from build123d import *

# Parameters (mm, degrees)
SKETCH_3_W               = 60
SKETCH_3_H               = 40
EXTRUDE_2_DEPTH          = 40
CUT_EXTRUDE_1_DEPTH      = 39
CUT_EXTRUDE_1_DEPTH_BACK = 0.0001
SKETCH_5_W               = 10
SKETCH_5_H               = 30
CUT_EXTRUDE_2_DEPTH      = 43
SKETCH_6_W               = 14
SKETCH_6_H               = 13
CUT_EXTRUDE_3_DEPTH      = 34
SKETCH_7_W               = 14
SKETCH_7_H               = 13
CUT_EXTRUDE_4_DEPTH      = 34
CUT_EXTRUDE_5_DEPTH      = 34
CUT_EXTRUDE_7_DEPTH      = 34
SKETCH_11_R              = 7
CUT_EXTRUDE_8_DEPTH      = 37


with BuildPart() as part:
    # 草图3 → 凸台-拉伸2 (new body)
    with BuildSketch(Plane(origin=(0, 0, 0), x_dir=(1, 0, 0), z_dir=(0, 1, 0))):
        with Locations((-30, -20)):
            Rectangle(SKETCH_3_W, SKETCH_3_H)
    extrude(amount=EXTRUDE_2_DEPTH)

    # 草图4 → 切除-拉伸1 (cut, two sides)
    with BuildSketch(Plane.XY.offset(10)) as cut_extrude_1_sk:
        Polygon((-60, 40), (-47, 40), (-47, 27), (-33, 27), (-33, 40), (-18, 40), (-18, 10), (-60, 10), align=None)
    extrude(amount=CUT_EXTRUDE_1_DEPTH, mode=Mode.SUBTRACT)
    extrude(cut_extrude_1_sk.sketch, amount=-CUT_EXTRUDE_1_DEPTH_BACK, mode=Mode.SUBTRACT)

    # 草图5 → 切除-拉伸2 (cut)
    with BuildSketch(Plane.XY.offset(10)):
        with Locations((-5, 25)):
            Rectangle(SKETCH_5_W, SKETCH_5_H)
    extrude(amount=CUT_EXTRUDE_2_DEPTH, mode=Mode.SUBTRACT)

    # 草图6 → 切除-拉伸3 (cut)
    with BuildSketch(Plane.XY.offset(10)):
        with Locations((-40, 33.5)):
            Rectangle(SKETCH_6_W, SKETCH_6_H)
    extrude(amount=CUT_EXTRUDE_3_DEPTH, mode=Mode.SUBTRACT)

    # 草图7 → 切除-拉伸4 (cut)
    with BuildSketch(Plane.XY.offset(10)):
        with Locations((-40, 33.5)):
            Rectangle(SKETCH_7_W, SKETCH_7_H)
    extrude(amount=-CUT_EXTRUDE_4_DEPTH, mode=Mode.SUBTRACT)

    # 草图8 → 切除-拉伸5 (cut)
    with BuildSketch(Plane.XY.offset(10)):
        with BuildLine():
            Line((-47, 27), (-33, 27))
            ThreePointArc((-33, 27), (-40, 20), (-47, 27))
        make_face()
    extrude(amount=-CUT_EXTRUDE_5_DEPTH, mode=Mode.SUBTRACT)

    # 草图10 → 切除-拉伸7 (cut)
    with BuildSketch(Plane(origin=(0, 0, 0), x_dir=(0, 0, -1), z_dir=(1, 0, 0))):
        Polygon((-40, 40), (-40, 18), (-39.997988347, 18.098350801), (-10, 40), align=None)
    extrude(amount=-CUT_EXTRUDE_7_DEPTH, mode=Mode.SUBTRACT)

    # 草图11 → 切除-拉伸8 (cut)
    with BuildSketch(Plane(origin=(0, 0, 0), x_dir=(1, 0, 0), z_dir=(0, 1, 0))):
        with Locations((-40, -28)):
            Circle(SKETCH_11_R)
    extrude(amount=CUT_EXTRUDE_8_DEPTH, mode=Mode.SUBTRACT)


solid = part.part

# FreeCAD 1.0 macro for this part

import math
import FreeCAD as App
import Part
import Sketcher

V = App.Vector

doc = App.newDocument("Part")
params = doc.addObject("Spreadsheet::Sheet", "Params")
for row, (alias, value) in enumerate([
    ("sketch1_width", "60 mm"),
    ("sketch1_height", "40 mm"),
    ("pad1_length", "40 mm"),
    ("sketch2_width", "13 mm"),
    ("sketch2_width2", "42 mm"),
    ("sketch2_width3", "15 mm"),
    ("sketch2_height", "30 mm"),
    ("pocket1_length", "39 mm"),
    ("pocket1_length2", "0.0001 mm"),
    ("sketch3_width", "10 mm"),
    ("sketch3_height", "30 mm"),
    ("pocket2_length", "43 mm"),
    ("sketch4_width", "14 mm"),
    ("sketch4_height", "13 mm"),
    ("pocket3_length", "34 mm"),
    ("sketch5_width", "14 mm"),
    ("sketch5_height", "13 mm"),
    ("pocket4_length", "34 mm"),
    ("sketch6_radius", "7 mm"),
    ("pocket5_length", "34 mm"),
    ("sketch7_width", "22 mm"),
    ("sketch7_height", "30 mm"),
    ("pocket6_length", "34 mm"),
    ("sketch8_diameter", "14 mm"),
    ("pocket7_length", "37 mm"),
], start=1):
    params.set(f"A{row}", alias)
    params.set(f"B{row}", "=" + value)
    params.setAlias(f"B{row}", alias)

body = doc.addObject("PartDesign::Body", "Body")

# Sketch on XZ plane
sketch1 = body.newObject("Sketcher::SketchObject", "Sketch")
sketch1.AttachmentSupport = (doc.getObject("XZ_Plane"), [""])
sketch1.MapMode = "FlatFace"
sketch1.addGeometry([
    Part.LineSegment(V(-60, 0, 0), V(-60, 40, 0)),
    Part.LineSegment(V(-60, 40, 0), V(0, 40, 0)),
    Part.LineSegment(V(0, 40, 0), V(0, 0, 0)),
    Part.LineSegment(V(0, 0, 0), V(-60, 0, 0)),
], False)
sketch1.addConstraint([
    Sketcher.Constraint("Coincident", 0, 2, 1, 1),
    Sketcher.Constraint("Coincident", 1, 2, 2, 1),
    Sketcher.Constraint("Coincident", 2, 2, 3, 1),
    Sketcher.Constraint("Coincident", 3, 2, 0, 1),
    Sketcher.Constraint("Vertical", 0),
    Sketcher.Constraint("Horizontal", 1),
    Sketcher.Constraint("Vertical", 2),
    Sketcher.Constraint("Horizontal", 3),
    Sketcher.Constraint("Coincident", 2, 2, -1, 1),
    Sketcher.Constraint("DistanceX", 1, 1, 1, 2, 60.0),
    Sketcher.Constraint("DistanceY", 0, 1, 0, 2, 40.0),
])
sketch1.setExpression("Constraints[9]", "Params.sketch1_width")
sketch1.setExpression("Constraints[10]", "Params.sketch1_height")
pad1 = body.newObject("PartDesign::Pad", "Pad")
pad1.Profile = sketch1
pad1.setExpression("Length", "Params.pad1_length")
pad1.Reversed = True

# Sketch on XY plane
sketch2 = body.newObject("Sketcher::SketchObject", "Sketch001")
sketch2.AttachmentSupport = (doc.getObject("XY_Plane"), [""])
sketch2.MapMode = "FlatFace"
sketch2.AttachmentOffset = App.Placement(V(0, 0, 10), App.Rotation())
sketch2.addGeometry([
    Part.LineSegment(V(-47, 40, 0), V(-60, 40, 0)),  # 0
    Part.LineSegment(V(-60, 40, 0), V(-60, 10, 0)),  # 1
    Part.LineSegment(V(-60, 10, 0), V(-18, 10, 0)),  # 2
    Part.LineSegment(V(-18, 10, 0), V(-18, 40, 0)),  # 3
    Part.LineSegment(V(-18, 40, 0), V(-33, 40, 0)),  # 4
    Part.LineSegment(V(-33, 40, 0), V(-33, 27, 0)),  # 5
    Part.LineSegment(V(-33, 27, 0), V(-47, 27, 0)),  # 6
    Part.LineSegment(V(-47, 27, 0), V(-47, 40, 0)),  # 7
], False)
sketch2.addConstraint([
    Sketcher.Constraint("Coincident", 0, 2, 1, 1),
    Sketcher.Constraint("Coincident", 1, 2, 2, 1),
    Sketcher.Constraint("Coincident", 2, 2, 3, 1),
    Sketcher.Constraint("Coincident", 3, 2, 4, 1),
    Sketcher.Constraint("Coincident", 4, 2, 5, 1),
    Sketcher.Constraint("Coincident", 5, 2, 6, 1),
    Sketcher.Constraint("Coincident", 6, 2, 7, 1),
    Sketcher.Constraint("Coincident", 7, 2, 0, 1),
    Sketcher.Constraint("Horizontal", 0),
    Sketcher.Constraint("Vertical", 1),
    Sketcher.Constraint("Horizontal", 2),
    Sketcher.Constraint("Vertical", 3),
    Sketcher.Constraint("Horizontal", 4),
    Sketcher.Constraint("Vertical", 5),
    Sketcher.Constraint("Horizontal", 6),
    Sketcher.Constraint("Vertical", 7),
    Sketcher.Constraint("Horizontal", 0, 2, 3, 2),
    Sketcher.Constraint("Equal", 0, 5),
    Sketcher.Constraint("DistanceX", 0, 2, 0, 1, 13.0),
    Sketcher.Constraint("DistanceX", 2, 1, 2, 2, 42.0),
    Sketcher.Constraint("DistanceX", 4, 2, 4, 1, 15.0),
    Sketcher.Constraint("DistanceY", 1, 2, 1, 1, 30.0),
    Sketcher.Constraint("DistanceX", 0, 2, -1, 1, 60.0),
    Sketcher.Constraint("DistanceY", -1, 1, 0, 2, 40.0),
])
sketch2.setExpression("Constraints[18]", "Params.sketch2_width")
sketch2.setExpression("Constraints[19]", "Params.sketch2_width2")
sketch2.setExpression("Constraints[20]", "Params.sketch2_width3")
sketch2.setExpression("Constraints[21]", "Params.sketch2_height")
pocket1 = body.newObject("PartDesign::Pocket", "Pocket")
pocket1.Profile = sketch2
pocket1.Type = "TwoLengths"
pocket1.setExpression("Length", "Params.pocket1_length")
pocket1.setExpression("Length2", "Params.pocket1_length2")
pocket1.Reversed = True

# Sketch on XY plane
sketch3 = body.newObject("Sketcher::SketchObject", "Sketch002")
sketch3.AttachmentSupport = (doc.getObject("XY_Plane"), [""])
sketch3.MapMode = "FlatFace"
sketch3.AttachmentOffset = App.Placement(V(0, 0, 10), App.Rotation())
sketch3.addGeometry([
    Part.LineSegment(V(-10, 40, 0), V(-10, 10, 0)),
    Part.LineSegment(V(-10, 10, 0), V(0, 10, 0)),
    Part.LineSegment(V(0, 10, 0), V(0, 40, 0)),
    Part.LineSegment(V(0, 40, 0), V(-10, 40, 0)),
], False)
sketch3.addConstraint([
    Sketcher.Constraint("Coincident", 0, 2, 1, 1),
    Sketcher.Constraint("Coincident", 1, 2, 2, 1),
    Sketcher.Constraint("Coincident", 2, 2, 3, 1),
    Sketcher.Constraint("Coincident", 3, 2, 0, 1),
    Sketcher.Constraint("Vertical", 0),
    Sketcher.Constraint("Horizontal", 1),
    Sketcher.Constraint("Vertical", 2),
    Sketcher.Constraint("Horizontal", 3),
    Sketcher.Constraint("PointOnObject", 1, 2, -2),
    Sketcher.Constraint("DistanceX", 1, 1, 1, 2, 10.0),
    Sketcher.Constraint("DistanceY", 0, 2, 0, 1, 30.0),
    Sketcher.Constraint("DistanceY", -1, 1, 0, 2, 10.0),
])
sketch3.setExpression("Constraints[9]", "Params.sketch3_width")
sketch3.setExpression("Constraints[10]", "Params.sketch3_height")
pocket2 = body.newObject("PartDesign::Pocket", "Pocket001")
pocket2.Profile = sketch3
pocket2.setExpression("Length", "Params.pocket2_length")
pocket2.Reversed = True

# Sketch on XY plane
sketch4 = body.newObject("Sketcher::SketchObject", "Sketch003")
sketch4.AttachmentSupport = (doc.getObject("XY_Plane"), [""])
sketch4.MapMode = "FlatFace"
sketch4.AttachmentOffset = App.Placement(V(0, 0, 10), App.Rotation())
sketch4.addGeometry([
    Part.LineSegment(V(-47, 40, 0), V(-47, 27, 0)),
    Part.LineSegment(V(-47, 27, 0), V(-33, 27, 0)),
    Part.LineSegment(V(-33, 27, 0), V(-33, 40, 0)),
    Part.LineSegment(V(-33, 40, 0), V(-47, 40, 0)),
], False)
sketch4.addConstraint([
    Sketcher.Constraint("Coincident", 0, 2, 1, 1),
    Sketcher.Constraint("Coincident", 1, 2, 2, 1),
    Sketcher.Constraint("Coincident", 2, 2, 3, 1),
    Sketcher.Constraint("Coincident", 3, 2, 0, 1),
    Sketcher.Constraint("Vertical", 0),
    Sketcher.Constraint("Horizontal", 1),
    Sketcher.Constraint("Vertical", 2),
    Sketcher.Constraint("Horizontal", 3),
    Sketcher.Constraint("DistanceX", 1, 1, 1, 2, 14.0),
    Sketcher.Constraint("DistanceY", 0, 2, 0, 1, 13.0),
    Sketcher.Constraint("DistanceX", 0, 2, -1, 1, 47.0),
    Sketcher.Constraint("DistanceY", -1, 1, 0, 2, 27.0),
])
sketch4.setExpression("Constraints[8]", "Params.sketch4_width")
sketch4.setExpression("Constraints[9]", "Params.sketch4_height")
pocket3 = body.newObject("PartDesign::Pocket", "Pocket002")
pocket3.Profile = sketch4
pocket3.setExpression("Length", "Params.pocket3_length")
pocket3.Reversed = True

# Sketch on XY plane
sketch5 = body.newObject("Sketcher::SketchObject", "Sketch004")
sketch5.AttachmentSupport = (doc.getObject("XY_Plane"), [""])
sketch5.MapMode = "FlatFace"
sketch5.AttachmentOffset = App.Placement(V(0, 0, 10), App.Rotation())
sketch5.addGeometry([
    Part.LineSegment(V(-47, 40, 0), V(-47, 27, 0)),
    Part.LineSegment(V(-47, 27, 0), V(-33, 27, 0)),
    Part.LineSegment(V(-33, 27, 0), V(-33, 40, 0)),
    Part.LineSegment(V(-33, 40, 0), V(-47, 40, 0)),
], False)
sketch5.addConstraint([
    Sketcher.Constraint("Coincident", 0, 2, 1, 1),
    Sketcher.Constraint("Coincident", 1, 2, 2, 1),
    Sketcher.Constraint("Coincident", 2, 2, 3, 1),
    Sketcher.Constraint("Coincident", 3, 2, 0, 1),
    Sketcher.Constraint("Vertical", 0),
    Sketcher.Constraint("Horizontal", 1),
    Sketcher.Constraint("Vertical", 2),
    Sketcher.Constraint("Horizontal", 3),
    Sketcher.Constraint("DistanceX", 1, 1, 1, 2, 14.0),
    Sketcher.Constraint("DistanceY", 0, 2, 0, 1, 13.0),
    Sketcher.Constraint("DistanceX", 0, 2, -1, 1, 47.0),
    Sketcher.Constraint("DistanceY", -1, 1, 0, 2, 27.0),
])
sketch5.setExpression("Constraints[8]", "Params.sketch5_width")
sketch5.setExpression("Constraints[9]", "Params.sketch5_height")
pocket4 = body.newObject("PartDesign::Pocket", "Pocket003")
pocket4.Profile = sketch5
pocket4.setExpression("Length", "Params.pocket4_length")

# Sketch on XY plane
sketch6 = body.newObject("Sketcher::SketchObject", "Sketch005")
sketch6.AttachmentSupport = (doc.getObject("XY_Plane"), [""])
sketch6.MapMode = "FlatFace"
sketch6.AttachmentOffset = App.Placement(V(0, 0, 10), App.Rotation())
sketch6.addGeometry([
    Part.LineSegment(V(-33, 27, 0), V(-47, 27, 0)),
    Part.ArcOfCircle(Part.Circle(V(-40, 27, 0), V(0, 0, 1), 7), math.radians(180), math.radians(360)),
], False)
sketch6.addConstraint([
    Sketcher.Constraint("Coincident", 0, 1, 1, 2),
    Sketcher.Constraint("Coincident", 1, 1, 0, 2),
    Sketcher.Constraint("Horizontal", 0),
    Sketcher.Constraint("Horizontal", 1, 3, 0, 1),
    Sketcher.Constraint("Radius", 1, 7.0),
    Sketcher.Constraint("DistanceX", 1, 3, -1, 1, 40.0),
    Sketcher.Constraint("DistanceY", -1, 1, 1, 3, 27.0),
])
sketch6.setExpression("Constraints[4]", "Params.sketch6_radius")
pocket5 = body.newObject("PartDesign::Pocket", "Pocket004")
pocket5.Profile = sketch6
pocket5.setExpression("Length", "Params.pocket5_length")

# Sketch on YZ plane
sketch7 = body.newObject("Sketcher::SketchObject", "Sketch006")
sketch7.AttachmentSupport = (doc.getObject("YZ_Plane"), [""])
sketch7.MapMode = "FlatFace"
sketch7.addGeometry([
    Part.LineSegment(V(40, 40, 0), V(18, 40, 0)),
    Part.LineSegment(V(18, 40, 0), V(18.1, 40, 0)),
    Part.LineSegment(V(18.1, 40, 0), V(40, 10, 0)),
    Part.LineSegment(V(40, 10, 0), V(40, 40, 0)),
], False)
sketch7.addConstraint([
    Sketcher.Constraint("Coincident", 0, 2, 1, 1),
    Sketcher.Constraint("Coincident", 1, 2, 2, 1),
    Sketcher.Constraint("Coincident", 2, 2, 3, 1),
    Sketcher.Constraint("Coincident", 3, 2, 0, 1),
    Sketcher.Constraint("Horizontal", 0),
    Sketcher.Constraint("Vertical", 3),
    Sketcher.Constraint("DistanceX", 0, 2, 0, 1, 22.0),
    Sketcher.Constraint("DistanceY", 3, 1, 3, 2, 30.0),
    Sketcher.Constraint("DistanceX", -1, 1, 0, 2, 18.0),
    Sketcher.Constraint("DistanceY", -1, 1, 0, 2, 40.0),
    Sketcher.Constraint("Distance", 1, 0.098371),
    Sketcher.Constraint("Distance", 2, 37.142449),
])
sketch7.setExpression("Constraints[6]", "Params.sketch7_width")
sketch7.setExpression("Constraints[7]", "Params.sketch7_height")
pocket6 = body.newObject("PartDesign::Pocket", "Pocket005")
pocket6.Profile = sketch7
pocket6.setExpression("Length", "Params.pocket6_length")

# Sketch on XZ plane
sketch8 = body.newObject("Sketcher::SketchObject", "Sketch007")
sketch8.AttachmentSupport = (doc.getObject("XZ_Plane"), [""])
sketch8.MapMode = "FlatFace"
sketch8.addGeometry(Part.Circle(V(-40, 28, 0), V(0, 0, 1), 7), False)
sketch8.addConstraint([
    Sketcher.Constraint("Diameter", 0, 14.0),
    Sketcher.Constraint("DistanceX", 0, 3, -1, 1, 40.0),
    Sketcher.Constraint("DistanceY", -1, 1, 0, 3, 28.0),
])
sketch8.setExpression("Constraints[0]", "Params.sketch8_diameter")
pocket7 = body.newObject("PartDesign::Pocket", "Pocket006")
pocket7.Profile = sketch8
pocket7.setExpression("Length", "Params.pocket7_length")

doc.recompute()
